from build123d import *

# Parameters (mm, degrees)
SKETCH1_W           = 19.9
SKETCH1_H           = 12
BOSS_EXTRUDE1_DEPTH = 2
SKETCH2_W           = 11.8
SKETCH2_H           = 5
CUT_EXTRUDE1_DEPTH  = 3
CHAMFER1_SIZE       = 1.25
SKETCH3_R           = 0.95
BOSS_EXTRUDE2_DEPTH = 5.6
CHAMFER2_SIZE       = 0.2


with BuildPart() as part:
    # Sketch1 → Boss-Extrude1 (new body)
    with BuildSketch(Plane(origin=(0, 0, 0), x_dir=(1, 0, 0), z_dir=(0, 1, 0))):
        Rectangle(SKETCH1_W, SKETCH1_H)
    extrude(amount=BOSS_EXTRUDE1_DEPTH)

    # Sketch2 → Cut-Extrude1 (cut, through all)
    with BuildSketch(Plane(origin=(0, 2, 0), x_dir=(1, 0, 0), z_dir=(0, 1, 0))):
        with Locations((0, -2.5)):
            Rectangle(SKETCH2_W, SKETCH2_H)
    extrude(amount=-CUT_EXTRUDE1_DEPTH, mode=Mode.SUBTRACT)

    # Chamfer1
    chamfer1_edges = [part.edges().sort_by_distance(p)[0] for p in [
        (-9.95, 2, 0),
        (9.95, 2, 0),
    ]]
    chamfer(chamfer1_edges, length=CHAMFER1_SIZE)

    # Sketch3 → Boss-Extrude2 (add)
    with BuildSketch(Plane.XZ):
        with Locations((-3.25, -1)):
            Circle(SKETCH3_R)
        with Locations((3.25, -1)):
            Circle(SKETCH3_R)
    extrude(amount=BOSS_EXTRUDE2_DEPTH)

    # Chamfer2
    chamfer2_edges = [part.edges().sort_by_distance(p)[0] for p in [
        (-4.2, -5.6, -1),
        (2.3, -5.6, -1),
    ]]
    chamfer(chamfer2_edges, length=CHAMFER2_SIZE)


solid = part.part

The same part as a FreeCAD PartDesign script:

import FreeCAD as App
import Part
import Sketcher
from FreeCAD import Vector


def edges_at(feature, points):
    """Names of the edges that pass closest to the given points."""
    edges = feature.Shape.Edges
    near = lambda p: min(range(len(edges)), key=lambda i: edges[i].distToShape(Part.Vertex(*p))[0])
    return sorted({f"Edge{near(p) + 1}" for p in points})


def add_polygon(sketch, points):
    """Adds a closed chain of lines whose ends are joined by coincident constraints."""
    first, n = sketch.GeometryCount, len(points)
    for a, b in zip(points, points[1:] + points[:1]):
        sketch.addGeometry(Part.LineSegment(App.Vector(*a, 0), App.Vector(*b, 0)), False)
    for i in range(n):
        sketch.addConstraint(Sketcher.Constraint("Coincident", first + i, 2, first + (i + 1) % n, 1))

doc = App.newDocument("Part")
body = doc.addObject("PartDesign::Body", "Body")

# Sketch on XZ plane
sketch1 = doc.addObject("Sketcher::SketchObject", "Sketch")
body.addObject(sketch1)
sketch1.AttachmentSupport = (doc.XZ_Plane, [""])
sketch1.MapMode = "FlatFace"
add_polygon(sketch1, [(-10, -6), (-10, 6), (10, 6), (10, -6)])  # lines 0-3
sketch1.addConstraint([
    Sketcher.Constraint("Vertical", 0),
    Sketcher.Constraint("Horizontal", 1),
    Sketcher.Constraint("Vertical", 2),
    Sketcher.Constraint("Horizontal", 3),
    Sketcher.Constraint("Symmetric", 0, 2, 2, 2, -1, 1),
    Sketcher.Constraint("DistanceY", 0, 1, 0, 2, 12.0),
    Sketcher.Constraint("DistanceX", 1, 1, 1, 2, 19.9),
])
pad1 = doc.addObject("PartDesign::Pad", "Pad")
body.addObject(pad1)
pad1.Profile = sketch1
pad1.Length = 2
pad1.Reversed = True

# Sketch on XZ plane
sketch2 = doc.addObject("Sketcher::SketchObject", "Sketch001")
body.addObject(sketch2)
sketch2.AttachmentSupport = (doc.XZ_Plane, [""])
sketch2.MapMode = "FlatFace"
sketch2.AttachmentOffset = App.Placement(Vector(0, 0, -2), App.Rotation())
add_polygon(sketch2, [(-6, 0), (-6, 5), (6, 5), (6, 0)])  # lines 0-3
sketch2.addConstraint([
    Sketcher.Constraint("Vertical", 0),
    Sketcher.Constraint("Horizontal", 1),
    Sketcher.Constraint("Vertical", 2),
    Sketcher.Constraint("Horizontal", 3),
    Sketcher.Constraint("Symmetric", 2, 2, 3, 2, -1, 1),
    Sketcher.Constraint("DistanceY", 0, 1, 0, 2, 5.0),
    Sketcher.Constraint("DistanceX", 1, 1, 1, 2, 11.8),
])
pocket1 = doc.addObject("PartDesign::Pocket", "Pocket")
body.addObject(pocket1)
pocket1.Profile = sketch2
pocket1.Type = "ThroughAll"
pocket1.Reversed = True
doc.recompute()

chamfer = doc.addObject("PartDesign::Chamfer", "Chamfer")
body.addObject(chamfer)
chamfer.Base = (pocket1, edges_at(pocket1, [(-9.95, 2, 0), (9.95, 2, 0)]))
chamfer.Size = 1.25

# Sketch on XZ plane
sketch3 = doc.addObject("Sketcher::SketchObject", "Sketch002")
body.addObject(sketch3)
sketch3.AttachmentSupport = (doc.XZ_Plane, [""])
sketch3.MapMode = "FlatFace"
sketch3.addGeometry([
    Part.Circle(Vector(-3.2, -1, 0), Vector(0, 0, 1), 0.9),
    Part.Circle(Vector(3.2, -1, 0), Vector(0, 0, 1), 0.9),
], False)
sketch3.addConstraint([
    Sketcher.Constraint("Equal", 0, 1),
    Sketcher.Constraint("Symmetric", 0, 3, 1, 3, -2),
    Sketcher.Constraint("Diameter", 0, 1.9),
    Sketcher.Constraint("DistanceY", 0, 3, -1, 1, 1.0),
    Sketcher.Constraint("DistanceX", 0, 3, 1, 3, 6.5),
])
pad2 = doc.addObject("PartDesign::Pad", "Pad001")
body.addObject(pad2)
pad2.Profile = sketch3
pad2.Length = 5.6
doc.recompute()

chamfer2 = doc.addObject("PartDesign::Chamfer", "Chamfer001")
body.addObject(chamfer2)
chamfer2.Base = (pad2, edges_at(pad2, [(-4.2, -5.6, -1), (2.3, -5.6, -1)]))
chamfer2.Size = 0.2

doc.recompute()
